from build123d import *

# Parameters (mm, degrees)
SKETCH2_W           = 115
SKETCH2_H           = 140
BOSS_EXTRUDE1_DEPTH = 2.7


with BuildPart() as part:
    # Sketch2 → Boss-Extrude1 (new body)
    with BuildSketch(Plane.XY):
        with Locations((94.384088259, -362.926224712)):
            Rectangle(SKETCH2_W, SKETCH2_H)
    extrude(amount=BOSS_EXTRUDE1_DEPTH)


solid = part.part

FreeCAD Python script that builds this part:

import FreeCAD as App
import Part
import Sketcher
Q = App.Units.Quantity

doc = App.newDocument("Part")
body = doc.addObject("PartDesign::Body", "Body")

# Sketch on XY plane
sketch1 = body.newObject("Sketcher::SketchObject", "Sketch")
sketch1.AttachmentSupport = (doc.getObject("XY_Plane"), [""])
sketch1.MapMode = "FlatFace"
sketch1.addGeometry([
    Part.LineSegment(App.Vector(37, -293, 0), App.Vector(37, -433, 0)),
    Part.LineSegment(App.Vector(37, -433, 0), App.Vector(152, -433, 0)),
    Part.LineSegment(App.Vector(152, -433, 0), App.Vector(152, -293, 0)),
    Part.LineSegment(App.Vector(152, -293, 0), App.Vector(37, -293, 0)),
], False)
sketch1.addConstraint([
    Sketcher.Constraint("Coincident", 0, 2, 1, 1),
    Sketcher.Constraint("Coincident", 1, 2, 2, 1),
    Sketcher.Constraint("Coincident", 2, 2, 3, 1),
    Sketcher.Constraint("Coincident", 3, 2, 0, 1),
    Sketcher.Constraint("Vertical", 0),
    Sketcher.Constraint("Horizontal", 1),
    Sketcher.Constraint("Vertical", 2),
    Sketcher.Constraint("Horizontal", 3),
    Sketcher.Constraint("DistanceX", 1, 1, 1, 2, Q("115 mm")),
    Sketcher.Constraint("DistanceY", 0, 2, 0, 1, Q("140 mm")),
    Sketcher.Constraint("DistanceX", -1, 1, 0, 2, Q("36.884088 mm")),
    Sketcher.Constraint("DistanceY", 0, 2, -1, 1, Q("432.926225 mm")),
])
pad1 = body.newObject("PartDesign::Pad", "Pad")
pad1.Profile = sketch1
pad1.Length = 2.7

doc.recompute()
